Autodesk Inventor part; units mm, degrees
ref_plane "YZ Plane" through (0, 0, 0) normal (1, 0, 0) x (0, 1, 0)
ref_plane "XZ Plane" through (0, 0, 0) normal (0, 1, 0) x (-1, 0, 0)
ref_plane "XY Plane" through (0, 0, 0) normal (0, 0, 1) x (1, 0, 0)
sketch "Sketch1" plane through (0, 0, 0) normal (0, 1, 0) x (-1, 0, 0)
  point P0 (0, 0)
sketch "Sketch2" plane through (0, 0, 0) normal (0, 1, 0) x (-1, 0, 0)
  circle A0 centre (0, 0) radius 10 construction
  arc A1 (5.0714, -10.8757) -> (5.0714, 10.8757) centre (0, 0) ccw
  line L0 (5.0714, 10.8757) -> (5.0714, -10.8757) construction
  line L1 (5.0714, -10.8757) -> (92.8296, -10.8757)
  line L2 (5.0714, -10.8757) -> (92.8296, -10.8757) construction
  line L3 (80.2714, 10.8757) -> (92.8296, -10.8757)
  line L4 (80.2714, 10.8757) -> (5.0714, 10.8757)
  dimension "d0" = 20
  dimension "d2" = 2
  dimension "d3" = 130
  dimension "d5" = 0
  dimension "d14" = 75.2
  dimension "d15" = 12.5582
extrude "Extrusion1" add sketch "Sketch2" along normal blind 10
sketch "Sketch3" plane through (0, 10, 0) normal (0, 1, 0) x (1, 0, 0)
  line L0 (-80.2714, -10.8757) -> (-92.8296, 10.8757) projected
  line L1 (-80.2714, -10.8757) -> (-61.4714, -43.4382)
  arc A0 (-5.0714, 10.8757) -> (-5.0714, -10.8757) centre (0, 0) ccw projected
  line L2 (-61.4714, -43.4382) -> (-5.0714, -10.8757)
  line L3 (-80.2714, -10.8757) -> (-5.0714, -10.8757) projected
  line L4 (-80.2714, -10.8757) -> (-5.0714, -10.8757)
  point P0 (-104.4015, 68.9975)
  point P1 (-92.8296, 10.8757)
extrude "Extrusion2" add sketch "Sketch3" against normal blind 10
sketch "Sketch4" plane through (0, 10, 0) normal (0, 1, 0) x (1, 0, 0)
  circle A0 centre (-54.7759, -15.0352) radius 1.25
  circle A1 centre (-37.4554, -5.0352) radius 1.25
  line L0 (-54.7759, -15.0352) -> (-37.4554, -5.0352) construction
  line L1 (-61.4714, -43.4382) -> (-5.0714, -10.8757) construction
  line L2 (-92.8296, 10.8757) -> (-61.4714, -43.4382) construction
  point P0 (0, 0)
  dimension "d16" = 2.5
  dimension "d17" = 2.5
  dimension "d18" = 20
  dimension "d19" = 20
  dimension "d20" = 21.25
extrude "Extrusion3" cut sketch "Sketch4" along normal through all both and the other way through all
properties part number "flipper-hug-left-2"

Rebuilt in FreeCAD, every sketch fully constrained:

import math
import FreeCAD as App
import Part
import Sketcher
from FreeCAD import Vector
Q = App.Units.Quantity

doc = App.newDocument("Part")
body = doc.addObject("PartDesign::Body", "Body")

sketch1 = doc.addObject("Sketcher::SketchObject", "Sketch")
body.addObject(sketch1)
sketch1.AttachmentSupport = (doc.XZ_Plane, [""])
sketch1.MapMode = "FlatFace"
sketch1.addGeometry(Part.ArcOfCircle(Part.Circle(Vector(0, 0, 0), Vector(0, 0, 1), 12), math.radians(115), math.radians(245)), False)
sketch1.addGeometry(Part.LineSegment(Vector(-5, -11, 0), Vector(-93, -11, 0)), False)
sketch1.addGeometry(Part.LineSegment(Vector(-93, -11, 0), Vector(-80, 11, 0)), False)
sketch1.addGeometry(Part.LineSegment(Vector(-80, 11, 0), Vector(-5, 11, 0)), False)
sketch1.addConstraint(Sketcher.Constraint("Coincident", 0, 2, 1, 1))
sketch1.addConstraint(Sketcher.Constraint("Coincident", 1, 2, 2, 1))
sketch1.addConstraint(Sketcher.Constraint("Coincident", 2, 2, 3, 1))
sketch1.addConstraint(Sketcher.Constraint("Coincident", 3, 2, 0, 1))
sketch1.addConstraint(Sketcher.Constraint("Horizontal", 1))
sketch1.addConstraint(Sketcher.Constraint("Horizontal", 3))
sketch1.addConstraint(Sketcher.Constraint("Coincident", 0, 3, -1, 1))
sketch1.addConstraint(Sketcher.Constraint("Vertical", 0, 2, 3, 2))
sketch1.addConstraint(Sketcher.Constraint("DistanceX", 3, 1, 3, 2, Q("75.2 mm")))
sketch1.addConstraint(Sketcher.Constraint("Radius", 0, Q("12 mm")))
sketch1.addConstraint(Sketcher.Constraint("Angle", 2, Q("60 deg")))
sketch1.addConstraint(Sketcher.Constraint("DistanceX", 1, 2, 2, 2, Q("12.5582 mm")))
pad1 = doc.addObject("PartDesign::Pad", "Pad")
body.addObject(pad1)
pad1.Profile = sketch1
pad1.Length = 10
pad1.Reversed = True

sketch2 = doc.addObject("Sketcher::SketchObject", "Sketch001")
body.addObject(sketch2)
sketch2.AttachmentSupport = (doc.XZ_Plane, [""])
sketch2.MapMode = "FlatFace"
sketch2.AttachmentOffset = App.Placement(Vector(0, 0, -10), App.Rotation())
sketch2.addGeometry(Part.LineSegment(Vector(-5, 11, 0), Vector(-80, 11, 0)), False)
sketch2.addGeometry(Part.LineSegment(Vector(-80, 11, 0), Vector(-61, 43, 0)), False)
sketch2.addGeometry(Part.LineSegment(Vector(-61, 43, 0), Vector(-5, 11, 0)), False)
sketch2.addConstraint(Sketcher.Constraint("Coincident", 0, 2, 1, 1))
sketch2.addConstraint(Sketcher.Constraint("Coincident", 1, 2, 2, 1))
sketch2.addConstraint(Sketcher.Constraint("Coincident", 2, 2, 0, 1))
sketch2.addConstraint(Sketcher.Constraint("Horizontal", 0))
sketch2.addConstraint(Sketcher.Constraint("Perpendicular", 1, 2))
sketch2.addConstraint(Sketcher.Constraint("Angle", 1, Q("60 deg")))
sketch2.addConstraint(Sketcher.Constraint("DistanceX", 0, 2, 0, 1, Q("75.2 mm")))
sketch2.addConstraint(Sketcher.Constraint("DistanceX", 0, 2, -1, 1, Q("80.2714 mm")))
sketch2.addConstraint(Sketcher.Constraint("DistanceY", -1, 1, 0, 2, Q("10.8757 mm")))
pad2 = doc.addObject("PartDesign::Pad", "Pad001")
body.addObject(pad2)
pad2.Profile = sketch2
pad2.Length = 10

sketch3 = doc.addObject("Sketcher::SketchObject", "Sketch002")
body.addObject(sketch3)
sketch3.AttachmentSupport = (doc.XZ_Plane, [""])
sketch3.MapMode = "FlatFace"
sketch3.AttachmentOffset = App.Placement(Vector(0, 0, -10), App.Rotation())
sketch3.addGeometry(Part.Circle(Vector(-54.8, 15, 0), Vector(0, 0, 1), 1.2), False)
sketch3.addGeometry(Part.Circle(Vector(-37.5, 5, 0), Vector(0, 0, 1), 1.2), False)
sketch3.addConstraint(Sketcher.Constraint("Equal", 0, 1))
sketch3.addConstraint(Sketcher.Constraint("Diameter", 0, Q("2.5 mm")))
sketch3.addConstraint(Sketcher.Constraint("DistanceY", 1, 3, 0, 3, Q("10 mm")))
sketch3.addConstraint(Sketcher.Constraint("DistanceX", 0, 3, -1, 1, Q("54.776 mm")))
sketch3.addConstraint(Sketcher.Constraint("DistanceY", -1, 1, 0, 3, Q("15.0352 mm")))
sketch3.addConstraint(Sketcher.Constraint("DistanceX", 1, 3, -1, 1, Q("37.4554 mm")))
pocket1 = doc.addObject("PartDesign::Pocket", "Pocket")
body.addObject(pocket1)
pocket1.Profile = sketch3
pocket1.Type = "ThroughAll"
pocket1.Midplane = True

doc.recompute()
